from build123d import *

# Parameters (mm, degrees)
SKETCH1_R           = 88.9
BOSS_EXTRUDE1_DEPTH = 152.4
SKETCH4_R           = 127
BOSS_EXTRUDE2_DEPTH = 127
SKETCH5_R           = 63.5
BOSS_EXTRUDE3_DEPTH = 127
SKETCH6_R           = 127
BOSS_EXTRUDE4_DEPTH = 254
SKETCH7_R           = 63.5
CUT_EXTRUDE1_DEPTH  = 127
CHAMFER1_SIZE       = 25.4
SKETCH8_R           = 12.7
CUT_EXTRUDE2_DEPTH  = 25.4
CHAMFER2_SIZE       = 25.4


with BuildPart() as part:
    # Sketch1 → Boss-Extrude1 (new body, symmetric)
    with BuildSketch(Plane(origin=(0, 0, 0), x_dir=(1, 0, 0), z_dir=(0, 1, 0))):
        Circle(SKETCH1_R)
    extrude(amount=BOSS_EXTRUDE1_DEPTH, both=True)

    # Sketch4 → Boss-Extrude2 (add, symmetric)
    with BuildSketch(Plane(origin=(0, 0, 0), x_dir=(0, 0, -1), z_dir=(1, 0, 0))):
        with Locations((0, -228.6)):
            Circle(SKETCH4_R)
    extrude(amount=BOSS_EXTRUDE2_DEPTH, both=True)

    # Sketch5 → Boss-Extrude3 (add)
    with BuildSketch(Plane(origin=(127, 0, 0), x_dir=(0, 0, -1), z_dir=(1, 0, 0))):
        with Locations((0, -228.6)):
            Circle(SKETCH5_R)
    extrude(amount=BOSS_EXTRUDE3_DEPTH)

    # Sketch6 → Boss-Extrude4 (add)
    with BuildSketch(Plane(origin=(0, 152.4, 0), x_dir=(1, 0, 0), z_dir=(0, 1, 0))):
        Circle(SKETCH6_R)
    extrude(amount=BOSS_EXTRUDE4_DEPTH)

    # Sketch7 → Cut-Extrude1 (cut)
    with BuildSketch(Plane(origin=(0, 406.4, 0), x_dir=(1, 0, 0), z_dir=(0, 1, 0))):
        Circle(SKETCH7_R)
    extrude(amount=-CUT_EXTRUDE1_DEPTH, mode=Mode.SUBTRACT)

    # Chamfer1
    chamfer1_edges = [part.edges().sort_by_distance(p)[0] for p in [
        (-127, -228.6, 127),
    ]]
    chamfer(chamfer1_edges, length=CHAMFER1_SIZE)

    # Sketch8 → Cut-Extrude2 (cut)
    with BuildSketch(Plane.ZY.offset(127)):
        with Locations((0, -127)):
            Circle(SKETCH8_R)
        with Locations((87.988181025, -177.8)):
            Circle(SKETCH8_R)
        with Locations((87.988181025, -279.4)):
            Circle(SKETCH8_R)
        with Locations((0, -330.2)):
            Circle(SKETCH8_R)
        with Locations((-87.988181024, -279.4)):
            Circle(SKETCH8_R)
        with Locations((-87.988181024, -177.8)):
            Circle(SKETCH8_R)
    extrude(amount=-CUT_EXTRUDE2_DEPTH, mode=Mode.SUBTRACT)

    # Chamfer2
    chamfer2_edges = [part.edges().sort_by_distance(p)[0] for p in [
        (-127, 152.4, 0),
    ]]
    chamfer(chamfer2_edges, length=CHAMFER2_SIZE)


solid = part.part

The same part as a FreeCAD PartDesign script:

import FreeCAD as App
import Part
import Sketcher
Q = App.Units.Quantity


def edges_at(feature, points):
    """Names of the edges that pass closest to the given points."""
    edges = feature.Shape.Edges
    near = lambda p: min(range(len(edges)), key=lambda i: edges[i].distToShape(Part.Vertex(*p))[0])
    return sorted({f"Edge{near(p) + 1}" for p in points})

doc = App.newDocument("Part")
body = doc.addObject("PartDesign::Body", "Body")

sketch1 = doc.addObject("Sketcher::SketchObject", "Sketch")
body.addObject(sketch1)
sketch1.AttachmentSupport = (doc.XZ_Plane, [""])
sketch1.MapMode = "FlatFace"
sketch1.addGeometry(Part.Circle(App.Vector(0, 0, 0), App.Vector(0, 0, 1), 89), False)
sketch1.addConstraint(Sketcher.Constraint("Coincident", 0, 3, -1, 1))
sketch1.addConstraint(Sketcher.Constraint("Diameter", 0, Q("7 in")))
pad1 = doc.addObject("PartDesign::Pad", "Pad")
body.addObject(pad1)
pad1.Profile = sketch1
pad1.Length = Q("12 in")
pad1.Midplane = True

sketch2 = doc.addObject("Sketcher::SketchObject", "Sketch001")
body.addObject(sketch2)
sketch2.AttachmentSupport = (doc.YZ_Plane, [""])
sketch2.MapMode = "FlatFace"
sketch2.addGeometry(Part.Circle(App.Vector(-229, 0, 0), App.Vector(0, 0, 1), 127), False)
sketch2.addConstraint(Sketcher.Constraint("PointOnObject", 0, 3, -1))
sketch2.addConstraint(Sketcher.Constraint("Diameter", 0, Q("10 in")))
sketch2.addConstraint(Sketcher.Constraint("DistanceX", 0, 3, -1, 1, Q("9 in")))
pad2 = doc.addObject("PartDesign::Pad", "Pad001")
body.addObject(pad2)
pad2.Profile = sketch2
pad2.Length = Q("10 in")
pad2.Midplane = True

sketch3 = doc.addObject("Sketcher::SketchObject", "Sketch002")
body.addObject(sketch3)
sketch3.AttachmentSupport = (doc.YZ_Plane, [""])
sketch3.MapMode = "FlatFace"
sketch3.AttachmentOffset = App.Placement(App.Vector(0, 0, 5 * 25.4), App.Rotation())
sketch3.addGeometry(Part.Circle(App.Vector(-229, 0, 0), App.Vector(0, 0, 1), 64), False)
sketch3.addConstraint(Sketcher.Constraint("PointOnObject", 0, 3, -1))
sketch3.addConstraint(Sketcher.Constraint("Diameter", 0, Q("5 in")))
sketch3.addConstraint(Sketcher.Constraint("DistanceX", 0, 3, -1, 1, Q("9 in")))
pad3 = doc.addObject("PartDesign::Pad", "Pad002")
body.addObject(pad3)
pad3.Profile = sketch3
pad3.Length = Q("5 in")

sketch4 = doc.addObject("Sketcher::SketchObject", "Sketch003")
body.addObject(sketch4)
sketch4.AttachmentSupport = (doc.XZ_Plane, [""])
sketch4.MapMode = "FlatFace"
sketch4.AttachmentOffset = App.Placement(App.Vector(0, 0, -6 * 25.4), App.Rotation())
sketch4.addGeometry(Part.Circle(App.Vector(0, 0, 0), App.Vector(0, 0, 1), 127), False)
sketch4.addConstraint(Sketcher.Constraint("Coincident", 0, 3, -1, 1))
sketch4.addConstraint(Sketcher.Constraint("Diameter", 0, Q("10 in")))
pad4 = doc.addObject("PartDesign::Pad", "Pad003")
body.addObject(pad4)
pad4.Profile = sketch4
pad4.Length = Q("10 in")
pad4.Reversed = True

sketch5 = doc.addObject("Sketcher::SketchObject", "Sketch004")
body.addObject(sketch5)
sketch5.AttachmentSupport = (doc.XZ_Plane, [""])
sketch5.MapMode = "FlatFace"
sketch5.AttachmentOffset = App.Placement(App.Vector(0, 0, -16 * 25.4), App.Rotation())
sketch5.addGeometry(Part.Circle(App.Vector(0, 0, 0), App.Vector(0, 0, 1), 64), False)
sketch5.addConstraint(Sketcher.Constraint("Coincident", 0, 3, -1, 1))
sketch5.addConstraint(Sketcher.Constraint("Diameter", 0, Q("5 in")))
pocket1 = doc.addObject("PartDesign::Pocket", "Pocket")
body.addObject(pocket1)
pocket1.Profile = sketch5
pocket1.Length = Q("5 in")
pocket1.Reversed = True
doc.recompute()

chamfer = doc.addObject("PartDesign::Chamfer", "Chamfer")
body.addObject(chamfer)
chamfer.Base = (pocket1, edges_at(pocket1, [(-127, -228.6, 127)]))
chamfer.Size = Q("1 in")

sketch6 = doc.addObject("Sketcher::SketchObject", "Sketch005")
body.addObject(sketch6)
sketch6.AttachmentSupport = (doc.YZ_Plane, [""])
sketch6.MapMode = "FlatFace"
sketch6.AttachmentOffset = App.Placement(App.Vector(0, 0, -5 * 25.4), App.Rotation())
sketch6.addGeometry(Part.Circle(App.Vector(-127, 0, 0), App.Vector(0, 0, 1), 13), False)
sketch6.addGeometry(Part.Circle(App.Vector(-178, 88, 0), App.Vector(0, 0, 1), 13), False)
sketch6.addGeometry(Part.Circle(App.Vector(-279, 88, 0), App.Vector(0, 0, 1), 13), False)
sketch6.addGeometry(Part.Circle(App.Vector(-330, 0, 0), App.Vector(0, 0, 1), 13), False)
sketch6.addGeometry(Part.Circle(App.Vector(-279, -88, 0), App.Vector(0, 0, 1), 13), False)
sketch6.addGeometry(Part.Circle(App.Vector(-178, -88, 0), App.Vector(0, 0, 1), 13), False)
sketch6.addConstraint(Sketcher.Constraint("Equal", 0, 1))
sketch6.addConstraint(Sketcher.Constraint("Equal", 1, 2))
sketch6.addConstraint(Sketcher.Constraint("Equal", 2, 3))
sketch6.addConstraint(Sketcher.Constraint("Equal", 3, 4))
sketch6.addConstraint(Sketcher.Constraint("Equal", 4, 5))
sketch6.addConstraint(Sketcher.Constraint("Symmetric", 2, 3, 4, 3, -1))
sketch6.addConstraint(Sketcher.Constraint("Symmetric", 1, 3, 5, 3, -1))
sketch6.addConstraint(Sketcher.Constraint("PointOnObject", 0, 3, -1))
sketch6.addConstraint(Sketcher.Constraint("PointOnObject", 3, 3, -1))
sketch6.addConstraint(Sketcher.Constraint("Horizontal", 1, 3, 2, 3))
sketch6.addConstraint(Sketcher.Constraint("Diameter", 0, Q("1 in")))
sketch6.addConstraint(Sketcher.Constraint("DistanceX", 0, 3, -1, 1, Q("5 in")))
sketch6.addConstraint(Sketcher.Constraint("DistanceX", 1, 3, -1, 1, Q("7 in")))
sketch6.addConstraint(Sketcher.Constraint("DistanceX", 2, 3, -1, 1, Q("11 in")))
sketch6.addConstraint(Sketcher.Constraint("DistanceX", 3, 3, -1, 1, Q("13 in")))
sketch6.addConstraint(Sketcher.Constraint("DistanceY", -1, 1, 1, 3, 87.988181))
pocket2 = doc.addObject("PartDesign::Pocket", "Pocket001")
body.addObject(pocket2)
pocket2.Profile = sketch6
pocket2.Length = Q("1 in")
pocket2.Reversed = True
doc.recompute()

chamfer2 = doc.addObject("PartDesign::Chamfer", "Chamfer001")
body.addObject(chamfer2)
chamfer2.Base = (pocket2, edges_at(pocket2, [(-127, 152.4, 0)]))
chamfer2.Size = Q("1 in")

doc.recompute()
